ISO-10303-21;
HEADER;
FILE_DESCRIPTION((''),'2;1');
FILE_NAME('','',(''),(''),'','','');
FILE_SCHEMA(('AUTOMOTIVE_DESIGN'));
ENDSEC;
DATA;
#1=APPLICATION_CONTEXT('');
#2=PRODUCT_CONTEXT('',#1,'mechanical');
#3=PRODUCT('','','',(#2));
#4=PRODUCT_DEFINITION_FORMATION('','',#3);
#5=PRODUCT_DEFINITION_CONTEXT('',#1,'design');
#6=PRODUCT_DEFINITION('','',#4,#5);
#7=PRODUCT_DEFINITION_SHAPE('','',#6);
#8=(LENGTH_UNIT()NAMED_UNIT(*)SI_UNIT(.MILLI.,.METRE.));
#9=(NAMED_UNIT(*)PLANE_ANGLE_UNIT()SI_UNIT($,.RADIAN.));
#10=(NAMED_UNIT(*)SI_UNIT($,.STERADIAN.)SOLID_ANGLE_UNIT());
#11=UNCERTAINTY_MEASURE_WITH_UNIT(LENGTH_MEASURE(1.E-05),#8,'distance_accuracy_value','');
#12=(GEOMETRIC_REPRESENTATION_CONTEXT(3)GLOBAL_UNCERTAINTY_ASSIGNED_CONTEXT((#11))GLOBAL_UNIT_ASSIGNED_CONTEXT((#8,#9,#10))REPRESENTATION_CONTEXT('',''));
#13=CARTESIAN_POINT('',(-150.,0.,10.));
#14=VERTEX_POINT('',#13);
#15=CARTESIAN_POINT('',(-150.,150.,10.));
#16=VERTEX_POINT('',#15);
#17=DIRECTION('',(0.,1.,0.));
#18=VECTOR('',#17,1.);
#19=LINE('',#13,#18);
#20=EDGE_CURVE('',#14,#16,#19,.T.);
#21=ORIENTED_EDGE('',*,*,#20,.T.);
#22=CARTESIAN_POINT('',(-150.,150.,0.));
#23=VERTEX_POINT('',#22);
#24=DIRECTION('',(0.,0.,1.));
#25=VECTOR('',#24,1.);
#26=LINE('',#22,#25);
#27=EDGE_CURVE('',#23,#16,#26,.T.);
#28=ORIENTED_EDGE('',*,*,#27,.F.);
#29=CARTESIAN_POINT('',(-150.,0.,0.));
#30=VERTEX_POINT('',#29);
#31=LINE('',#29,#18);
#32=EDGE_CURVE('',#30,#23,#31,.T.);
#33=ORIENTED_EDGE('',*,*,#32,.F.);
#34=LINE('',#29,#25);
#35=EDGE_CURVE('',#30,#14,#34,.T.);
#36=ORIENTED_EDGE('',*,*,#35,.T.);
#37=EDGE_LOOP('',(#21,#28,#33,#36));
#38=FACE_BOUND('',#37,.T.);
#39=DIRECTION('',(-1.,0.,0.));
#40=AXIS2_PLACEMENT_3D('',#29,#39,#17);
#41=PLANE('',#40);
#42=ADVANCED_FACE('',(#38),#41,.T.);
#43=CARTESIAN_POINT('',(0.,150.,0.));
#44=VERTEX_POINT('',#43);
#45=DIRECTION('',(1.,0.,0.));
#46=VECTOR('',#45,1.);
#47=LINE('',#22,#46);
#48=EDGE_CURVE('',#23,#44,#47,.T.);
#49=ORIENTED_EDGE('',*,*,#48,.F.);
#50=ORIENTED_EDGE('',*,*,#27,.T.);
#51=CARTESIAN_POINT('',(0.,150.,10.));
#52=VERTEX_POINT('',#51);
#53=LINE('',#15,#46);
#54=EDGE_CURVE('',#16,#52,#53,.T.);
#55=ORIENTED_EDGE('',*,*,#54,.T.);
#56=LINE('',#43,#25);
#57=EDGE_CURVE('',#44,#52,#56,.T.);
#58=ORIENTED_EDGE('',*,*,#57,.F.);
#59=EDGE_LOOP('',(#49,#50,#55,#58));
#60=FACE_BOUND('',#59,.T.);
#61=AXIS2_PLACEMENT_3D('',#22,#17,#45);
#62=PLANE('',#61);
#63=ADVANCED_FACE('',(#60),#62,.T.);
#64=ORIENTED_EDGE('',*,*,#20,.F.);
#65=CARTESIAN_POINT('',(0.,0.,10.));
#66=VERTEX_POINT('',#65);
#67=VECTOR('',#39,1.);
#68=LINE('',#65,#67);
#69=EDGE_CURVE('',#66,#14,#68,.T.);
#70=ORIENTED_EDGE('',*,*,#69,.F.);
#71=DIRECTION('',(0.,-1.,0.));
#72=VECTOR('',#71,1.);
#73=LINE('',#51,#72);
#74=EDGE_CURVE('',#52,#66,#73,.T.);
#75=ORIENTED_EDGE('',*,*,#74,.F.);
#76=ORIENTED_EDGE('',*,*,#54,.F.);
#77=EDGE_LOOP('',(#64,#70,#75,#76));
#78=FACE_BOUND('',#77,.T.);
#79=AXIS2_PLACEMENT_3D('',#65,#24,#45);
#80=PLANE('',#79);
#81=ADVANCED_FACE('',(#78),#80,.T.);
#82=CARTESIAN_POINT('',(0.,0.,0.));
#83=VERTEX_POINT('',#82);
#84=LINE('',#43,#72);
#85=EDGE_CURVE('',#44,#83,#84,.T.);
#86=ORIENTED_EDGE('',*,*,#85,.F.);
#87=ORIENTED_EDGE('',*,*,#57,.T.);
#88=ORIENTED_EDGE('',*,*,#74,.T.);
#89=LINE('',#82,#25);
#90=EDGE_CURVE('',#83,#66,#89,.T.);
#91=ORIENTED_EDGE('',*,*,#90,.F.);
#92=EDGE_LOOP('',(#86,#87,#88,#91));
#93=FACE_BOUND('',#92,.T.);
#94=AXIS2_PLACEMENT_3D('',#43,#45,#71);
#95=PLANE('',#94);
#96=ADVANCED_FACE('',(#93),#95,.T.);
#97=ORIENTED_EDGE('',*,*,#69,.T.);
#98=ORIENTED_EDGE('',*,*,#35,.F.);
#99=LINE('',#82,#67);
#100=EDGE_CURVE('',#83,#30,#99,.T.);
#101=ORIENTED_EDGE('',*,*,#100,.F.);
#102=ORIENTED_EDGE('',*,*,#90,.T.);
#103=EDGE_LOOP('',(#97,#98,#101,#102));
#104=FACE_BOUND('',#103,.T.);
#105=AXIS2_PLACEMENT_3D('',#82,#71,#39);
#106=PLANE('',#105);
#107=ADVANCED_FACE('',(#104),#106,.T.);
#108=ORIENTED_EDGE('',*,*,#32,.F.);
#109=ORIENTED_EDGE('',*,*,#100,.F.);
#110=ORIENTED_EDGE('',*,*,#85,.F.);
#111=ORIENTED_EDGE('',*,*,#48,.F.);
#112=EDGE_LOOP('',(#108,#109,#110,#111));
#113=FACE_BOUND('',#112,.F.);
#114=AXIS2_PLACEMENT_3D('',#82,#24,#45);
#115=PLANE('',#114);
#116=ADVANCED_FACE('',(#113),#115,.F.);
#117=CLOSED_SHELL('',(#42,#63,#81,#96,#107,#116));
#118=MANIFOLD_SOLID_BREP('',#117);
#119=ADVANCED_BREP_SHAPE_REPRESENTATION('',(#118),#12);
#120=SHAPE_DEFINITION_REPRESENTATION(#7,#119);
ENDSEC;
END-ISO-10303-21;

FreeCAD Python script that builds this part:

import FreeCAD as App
import Part
import Sketcher


def add_polygon(sketch, points):
    """Adds a closed chain of lines whose ends are joined by coincident constraints."""
    first, n = sketch.GeometryCount, len(points)
    for a, b in zip(points, points[1:] + points[:1]):
        sketch.addGeometry(Part.LineSegment(App.Vector(*a, 0), App.Vector(*b, 0)), False)
    for i in range(n):
        sketch.addConstraint(Sketcher.Constraint("Coincident", first + i, 2, first + (i + 1) % n, 1))

doc = App.newDocument("Part")
body = doc.addObject("PartDesign::Body", "Body")

# Sketch on XY plane
sketch1 = body.newObject("Sketcher::SketchObject", "Sketch")
sketch1.AttachmentSupport = (doc.getObject("XY_Plane"), [""])
sketch1.MapMode = "FlatFace"
add_polygon(sketch1, [(-150, 0), (0, 0), (0, 150), (-150, 150)])  # lines 0-3
sketch1.addConstraint([
    Sketcher.Constraint("Horizontal", 0),
    Sketcher.Constraint("Vertical", 1),
    Sketcher.Constraint("Horizontal", 2),
    Sketcher.Constraint("Vertical", 3),
    Sketcher.Constraint("Coincident", 0, 2, -1, 1),
    Sketcher.Constraint("Equal", 2, 1),
    Sketcher.Constraint("DistanceX", 0, 1, 0, 2, 150.0),
])
pad1 = body.newObject("PartDesign::Pad", "Pad")
pad1.Profile = sketch1
pad1.Length = 10

doc.recompute()
